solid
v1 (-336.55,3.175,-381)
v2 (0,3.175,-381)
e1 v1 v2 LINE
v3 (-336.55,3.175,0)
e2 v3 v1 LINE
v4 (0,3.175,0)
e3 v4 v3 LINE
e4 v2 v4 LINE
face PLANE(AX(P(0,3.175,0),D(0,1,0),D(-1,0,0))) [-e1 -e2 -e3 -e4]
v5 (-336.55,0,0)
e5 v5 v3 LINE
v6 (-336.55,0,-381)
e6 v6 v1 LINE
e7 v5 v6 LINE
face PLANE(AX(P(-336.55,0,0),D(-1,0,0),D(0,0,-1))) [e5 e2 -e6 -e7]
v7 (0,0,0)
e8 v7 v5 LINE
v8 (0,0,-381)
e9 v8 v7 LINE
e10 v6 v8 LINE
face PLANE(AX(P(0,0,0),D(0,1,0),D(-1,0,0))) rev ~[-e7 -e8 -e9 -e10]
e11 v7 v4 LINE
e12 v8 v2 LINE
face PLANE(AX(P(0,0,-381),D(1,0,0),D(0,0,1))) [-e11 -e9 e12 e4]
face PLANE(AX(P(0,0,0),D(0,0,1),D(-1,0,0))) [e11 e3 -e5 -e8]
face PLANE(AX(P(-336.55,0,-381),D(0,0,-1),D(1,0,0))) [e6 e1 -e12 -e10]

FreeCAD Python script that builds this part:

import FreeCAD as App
import Part
import Sketcher
from FreeCAD import Vector
Q = App.Units.Quantity

doc = App.newDocument("Part")
body = doc.addObject("PartDesign::Body", "Body")

# Sketch on XZ plane
sketch1 = body.newObject("Sketcher::SketchObject", "Sketch")
sketch1.AttachmentSupport = (doc.getObject("XZ_Plane"), [""])
sketch1.MapMode = "FlatFace"
sketch1.addGeometry(Part.LineSegment(Vector(-337, 0, 0), Vector(0, 0, 0)), False)
sketch1.addGeometry(Part.LineSegment(Vector(0, 0, 0), Vector(0, -381, 0)), False)
sketch1.addGeometry(Part.LineSegment(Vector(0, -381, 0), Vector(-337, -381, 0)), False)
sketch1.addGeometry(Part.LineSegment(Vector(-337, -381, 0), Vector(-337, 0, 0)), False)
sketch1.addConstraint(Sketcher.Constraint("Coincident", 0, 2, 1, 1))
sketch1.addConstraint(Sketcher.Constraint("Coincident", 1, 2, 2, 1))
sketch1.addConstraint(Sketcher.Constraint("Coincident", 2, 2, 3, 1))
sketch1.addConstraint(Sketcher.Constraint("Coincident", 3, 2, 0, 1))
sketch1.addConstraint(Sketcher.Constraint("Horizontal", 0))
sketch1.addConstraint(Sketcher.Constraint("Vertical", 1))
sketch1.addConstraint(Sketcher.Constraint("Horizontal", 2))
sketch1.addConstraint(Sketcher.Constraint("Vertical", 3))
sketch1.addConstraint(Sketcher.Constraint("Coincident", 0, 2, -1, 1))
sketch1.addConstraint(Sketcher.Constraint("DistanceY", 1, 2, 1, 1, Q("15 in")))
sketch1.addConstraint(Sketcher.Constraint("DistanceX", 0, 1, 0, 2, Q("13.25 in")))
pad1 = body.newObject("PartDesign::Pad", "Pad")
pad1.Profile = sketch1
pad1.Length = Q("0.125 in")
pad1.Reversed = True

doc.recompute()
